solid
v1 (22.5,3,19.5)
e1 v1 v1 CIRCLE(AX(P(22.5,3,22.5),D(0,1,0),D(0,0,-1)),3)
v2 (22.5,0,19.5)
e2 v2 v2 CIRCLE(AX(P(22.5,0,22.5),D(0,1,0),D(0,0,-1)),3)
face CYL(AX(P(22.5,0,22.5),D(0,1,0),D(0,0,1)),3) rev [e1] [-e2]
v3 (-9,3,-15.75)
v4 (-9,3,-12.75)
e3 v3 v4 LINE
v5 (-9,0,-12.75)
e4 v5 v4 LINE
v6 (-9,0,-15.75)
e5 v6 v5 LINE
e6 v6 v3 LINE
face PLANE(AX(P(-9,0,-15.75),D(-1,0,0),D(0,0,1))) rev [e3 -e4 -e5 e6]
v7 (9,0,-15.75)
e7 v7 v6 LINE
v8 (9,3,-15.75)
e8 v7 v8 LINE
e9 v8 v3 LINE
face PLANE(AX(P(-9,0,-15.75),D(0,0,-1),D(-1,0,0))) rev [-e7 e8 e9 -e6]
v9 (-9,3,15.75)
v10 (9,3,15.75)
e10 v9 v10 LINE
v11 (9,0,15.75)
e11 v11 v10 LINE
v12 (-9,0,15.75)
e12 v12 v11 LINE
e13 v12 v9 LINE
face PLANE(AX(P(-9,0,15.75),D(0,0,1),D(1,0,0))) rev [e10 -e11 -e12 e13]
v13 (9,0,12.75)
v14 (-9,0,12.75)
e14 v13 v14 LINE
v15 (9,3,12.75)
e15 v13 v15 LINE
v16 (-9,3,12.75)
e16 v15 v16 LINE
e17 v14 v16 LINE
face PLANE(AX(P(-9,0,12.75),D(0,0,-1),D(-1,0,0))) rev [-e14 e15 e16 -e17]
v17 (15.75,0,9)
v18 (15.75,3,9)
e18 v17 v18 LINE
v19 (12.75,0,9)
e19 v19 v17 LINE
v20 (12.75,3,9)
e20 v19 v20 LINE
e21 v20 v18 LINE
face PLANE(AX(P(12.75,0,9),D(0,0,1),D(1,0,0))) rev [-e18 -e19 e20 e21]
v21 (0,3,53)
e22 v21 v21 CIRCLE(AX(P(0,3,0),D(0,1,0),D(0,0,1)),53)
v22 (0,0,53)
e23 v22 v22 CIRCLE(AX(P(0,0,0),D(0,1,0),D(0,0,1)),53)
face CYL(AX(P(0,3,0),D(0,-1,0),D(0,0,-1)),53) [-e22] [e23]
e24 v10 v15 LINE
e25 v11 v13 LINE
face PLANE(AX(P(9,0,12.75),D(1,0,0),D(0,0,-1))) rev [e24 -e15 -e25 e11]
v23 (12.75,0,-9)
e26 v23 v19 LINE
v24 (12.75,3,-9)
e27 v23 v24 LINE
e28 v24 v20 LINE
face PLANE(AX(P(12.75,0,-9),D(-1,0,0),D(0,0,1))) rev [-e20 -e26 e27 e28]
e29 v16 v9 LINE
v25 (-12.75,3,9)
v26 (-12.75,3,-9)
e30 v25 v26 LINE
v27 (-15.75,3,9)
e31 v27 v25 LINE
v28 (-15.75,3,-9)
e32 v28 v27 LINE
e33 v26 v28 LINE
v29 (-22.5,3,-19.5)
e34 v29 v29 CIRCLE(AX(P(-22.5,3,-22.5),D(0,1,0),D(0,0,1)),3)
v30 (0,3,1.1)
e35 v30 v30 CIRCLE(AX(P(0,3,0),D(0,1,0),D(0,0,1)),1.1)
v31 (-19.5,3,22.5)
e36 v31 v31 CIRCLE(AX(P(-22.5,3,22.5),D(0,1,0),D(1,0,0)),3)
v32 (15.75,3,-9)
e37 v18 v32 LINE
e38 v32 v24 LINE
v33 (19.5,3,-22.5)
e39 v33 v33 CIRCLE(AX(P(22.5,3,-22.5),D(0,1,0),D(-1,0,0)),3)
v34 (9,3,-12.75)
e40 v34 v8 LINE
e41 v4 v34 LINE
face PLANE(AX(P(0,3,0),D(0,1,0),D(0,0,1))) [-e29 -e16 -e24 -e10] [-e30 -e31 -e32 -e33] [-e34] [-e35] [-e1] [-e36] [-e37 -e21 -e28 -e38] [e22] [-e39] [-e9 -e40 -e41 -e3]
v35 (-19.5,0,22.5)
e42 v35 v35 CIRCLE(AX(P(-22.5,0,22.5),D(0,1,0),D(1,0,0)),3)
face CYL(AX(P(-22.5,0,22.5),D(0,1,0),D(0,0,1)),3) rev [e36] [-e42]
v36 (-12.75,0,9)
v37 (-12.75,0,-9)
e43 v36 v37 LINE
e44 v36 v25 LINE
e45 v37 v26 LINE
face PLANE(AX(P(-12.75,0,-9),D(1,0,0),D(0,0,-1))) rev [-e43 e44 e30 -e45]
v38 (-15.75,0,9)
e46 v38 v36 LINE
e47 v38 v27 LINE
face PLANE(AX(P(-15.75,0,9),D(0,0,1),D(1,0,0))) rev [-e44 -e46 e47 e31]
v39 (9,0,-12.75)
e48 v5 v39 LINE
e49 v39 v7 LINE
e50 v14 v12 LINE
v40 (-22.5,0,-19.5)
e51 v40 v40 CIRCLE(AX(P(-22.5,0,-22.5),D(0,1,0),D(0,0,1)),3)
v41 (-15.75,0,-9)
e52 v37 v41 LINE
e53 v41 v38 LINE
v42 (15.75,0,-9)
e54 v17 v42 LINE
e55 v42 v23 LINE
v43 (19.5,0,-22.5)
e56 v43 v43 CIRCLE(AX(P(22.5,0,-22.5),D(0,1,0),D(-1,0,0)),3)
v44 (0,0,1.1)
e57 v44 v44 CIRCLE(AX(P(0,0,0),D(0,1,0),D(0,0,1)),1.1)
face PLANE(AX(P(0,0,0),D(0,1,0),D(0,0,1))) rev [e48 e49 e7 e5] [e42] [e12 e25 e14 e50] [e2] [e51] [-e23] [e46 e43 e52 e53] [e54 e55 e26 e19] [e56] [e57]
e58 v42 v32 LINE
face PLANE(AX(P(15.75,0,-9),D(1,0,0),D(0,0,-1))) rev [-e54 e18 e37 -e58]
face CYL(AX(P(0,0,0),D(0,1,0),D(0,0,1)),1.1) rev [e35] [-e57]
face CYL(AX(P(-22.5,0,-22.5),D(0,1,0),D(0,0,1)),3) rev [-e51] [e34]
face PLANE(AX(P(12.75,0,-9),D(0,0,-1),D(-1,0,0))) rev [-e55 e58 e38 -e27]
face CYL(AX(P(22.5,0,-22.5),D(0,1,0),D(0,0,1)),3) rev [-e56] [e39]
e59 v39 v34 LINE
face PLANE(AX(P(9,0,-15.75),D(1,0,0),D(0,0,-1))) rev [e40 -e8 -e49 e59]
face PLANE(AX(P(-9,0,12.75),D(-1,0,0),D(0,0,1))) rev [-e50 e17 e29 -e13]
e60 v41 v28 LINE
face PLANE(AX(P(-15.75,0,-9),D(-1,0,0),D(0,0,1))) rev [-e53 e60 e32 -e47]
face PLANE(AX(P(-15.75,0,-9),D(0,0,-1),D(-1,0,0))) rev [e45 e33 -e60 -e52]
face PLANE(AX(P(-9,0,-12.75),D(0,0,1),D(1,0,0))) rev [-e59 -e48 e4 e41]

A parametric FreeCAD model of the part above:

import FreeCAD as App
import Part
import Sketcher
from FreeCAD import Vector
Q = App.Units.Quantity


def add_polygon(sketch, points):
    """Adds a closed chain of lines whose ends are joined by coincident constraints."""
    first, n = sketch.GeometryCount, len(points)
    for a, b in zip(points, points[1:] + points[:1]):
        sketch.addGeometry(Part.LineSegment(App.Vector(*a, 0), App.Vector(*b, 0)), False)
    for i in range(n):
        sketch.addConstraint(Sketcher.Constraint("Coincident", first + i, 2, first + (i + 1) % n, 1))

doc = App.newDocument("Part")
params = doc.addObject("Spreadsheet::Sheet", "Params")
for row, (alias, value) in enumerate([
    ("sketch1_diameter", "106 mm"),
    ("pad1_length", "3 mm"),
    ("sketch2_diameter", "2.2 mm"),
    ("sketch2_width", "18 mm"),
    ("sketch2_width2", "3 mm"),
    ("pocket1_length", "3 mm"),
    ("sketch3_diameter", "6 mm"),
    ("pocket2_length", "3 mm"),
], start=1):
    params.set(f"A{row}", alias)
    params.set(f"B{row}", "=" + value)
    params.setAlias(f"B{row}", alias)

body = doc.addObject("PartDesign::Body", "Body")

# Sketch on XZ plane
sketch1 = body.newObject("Sketcher::SketchObject", "Sketch")
sketch1.AttachmentSupport = (doc.getObject("XZ_Plane"), [""])
sketch1.MapMode = "FlatFace"
sketch1.addGeometry(Part.Circle(Vector(0, 0, 0), Vector(0, 0, 1), 53), False)
sketch1.addConstraint(Sketcher.Constraint("Coincident", 0, 3, -1, 1))
sketch1.addConstraint(Sketcher.Constraint("Diameter", 0, Q("106 mm")))
sketch1.setExpression("Constraints[1]", "Params.sketch1_diameter")
pad1 = body.newObject("PartDesign::Pad", "Pad")
pad1.Profile = sketch1
pad1.setExpression("Length", "Params.pad1_length")
pad1.Reversed = True

# Sketch on XZ plane
sketch2 = body.newObject("Sketcher::SketchObject", "Sketch001")
sketch2.AttachmentSupport = (doc.getObject("XZ_Plane"), [""])
sketch2.MapMode = "FlatFace"
sketch2.AttachmentOffset = App.Placement(Vector(0, 0, -3), App.Rotation())
sketch2.addGeometry(Part.Circle(Vector(0, 0, 0), Vector(0, 0, 1), 1.1), False)  # 0
add_polygon(sketch2, [(-9, -15.8), (-9, -12.8), (9, -12.8), (9, -15.8)])  # lines 1-4
add_polygon(sketch2, [(-15.8, -9), (-15.8, 9), (-12.8, 9), (-12.8, -9)])  # lines 5-8
add_polygon(sketch2, [(-9, 12.8), (-9, 15.8), (9, 15.8), (9, 12.8)])  # lines 9-12
add_polygon(sketch2, [(12.8, -9), (12.8, 9), (15.8, 9), (15.8, -9)])  # lines 13-16
sketch2.addConstraint(Sketcher.Constraint("Vertical", 1))
sketch2.addConstraint(Sketcher.Constraint("Horizontal", 2))
sketch2.addConstraint(Sketcher.Constraint("Vertical", 3))
sketch2.addConstraint(Sketcher.Constraint("Horizontal", 4))
sketch2.addConstraint(Sketcher.Constraint("Vertical", 5))
sketch2.addConstraint(Sketcher.Constraint("Horizontal", 6))
sketch2.addConstraint(Sketcher.Constraint("Vertical", 7))
sketch2.addConstraint(Sketcher.Constraint("Horizontal", 8))
sketch2.addConstraint(Sketcher.Constraint("Vertical", 9))
sketch2.addConstraint(Sketcher.Constraint("Horizontal", 10))
sketch2.addConstraint(Sketcher.Constraint("Vertical", 11))
sketch2.addConstraint(Sketcher.Constraint("Horizontal", 12))
sketch2.addConstraint(Sketcher.Constraint("Vertical", 13))
sketch2.addConstraint(Sketcher.Constraint("Horizontal", 14))
sketch2.addConstraint(Sketcher.Constraint("Vertical", 15))
sketch2.addConstraint(Sketcher.Constraint("Horizontal", 16))
sketch2.addConstraint(Sketcher.Constraint("Coincident", 0, 3, -1, 1))
sketch2.addConstraint(Sketcher.Constraint("Symmetric", 3, 2, 9, 2, -1, 1))
sketch2.addConstraint(Sketcher.Constraint("Symmetric", 1, 2, 11, 2, -1, 1))
sketch2.addConstraint(Sketcher.Constraint("Symmetric", 7, 2, 13, 2, -1, 1))
sketch2.addConstraint(Sketcher.Constraint("Symmetric", 5, 2, 15, 2, -1, 1))
sketch2.addConstraint(Sketcher.Constraint("Horizontal", 6, 2, 13, 2))
sketch2.addConstraint(Sketcher.Constraint("Vertical", 4, 2, 9, 2))
sketch2.addConstraint(Sketcher.Constraint("Equal", 16, 1))
sketch2.addConstraint(Sketcher.Constraint("Equal", 12, 5))
sketch2.addConstraint(Sketcher.Constraint("Diameter", 0, Q("2.2 mm")))
sketch2.addConstraint(Sketcher.Constraint("DistanceX", 2, 1, 2, 2, Q("18 mm")))
sketch2.addConstraint(Sketcher.Constraint("DistanceX", 6, 1, 6, 2, Q("3 mm")))
sketch2.addConstraint(Sketcher.Constraint("DistanceY", 2, 2, 10, 2, Q("28.5 mm")))
sketch2.addConstraint(Sketcher.Constraint("DistanceX", 5, 2, -1, 1, Q("15.75 mm")))
sketch2.setExpression("Constraints[41]", "Params.sketch2_diameter")
sketch2.setExpression("Constraints[42]", "Params.sketch2_width")
sketch2.setExpression("Constraints[43]", "Params.sketch2_width2")
pocket1 = body.newObject("PartDesign::Pocket", "Pocket")
pocket1.Profile = sketch2
pocket1.setExpression("Length", "Params.pocket1_length")
pocket1.Reversed = True

# Sketch on XZ plane
sketch3 = body.newObject("Sketcher::SketchObject", "Sketch002")
sketch3.AttachmentSupport = (doc.getObject("XZ_Plane"), [""])
sketch3.MapMode = "FlatFace"
sketch3.AttachmentOffset = App.Placement(Vector(0, 0, -3), App.Rotation())
sketch3.addGeometry(Part.Circle(Vector(-22.5, -22.5, 0), Vector(0, 0, 1), 3), False)
sketch3.addConstraint(Sketcher.Constraint("Diameter", 0, Q("6 mm")))
sketch3.addConstraint(Sketcher.Constraint("DistanceX", 0, 3, -1, 1, Q("22.5 mm")))
sketch3.addConstraint(Sketcher.Constraint("DistanceY", 0, 3, -1, 1, Q("22.5 mm")))
sketch3.setExpression("Constraints[0]", "Params.sketch3_diameter")
pocket2 = body.newObject("PartDesign::Pocket", "Pocket001")
pocket2.Profile = sketch3
pocket2.setExpression("Length", "Params.pocket2_length")
pocket2.Reversed = True
doc.recompute()

polarpattern = body.newObject("PartDesign::PolarPattern", "PolarPattern")
polarpattern.Originals = [pocket2]
polarpattern.Axis = (doc.getObject("Y_Axis"), [""])
polarpattern.Angle = 360
polarpattern.Occurrences = 4
body.Tip = polarpattern

doc.recompute()
